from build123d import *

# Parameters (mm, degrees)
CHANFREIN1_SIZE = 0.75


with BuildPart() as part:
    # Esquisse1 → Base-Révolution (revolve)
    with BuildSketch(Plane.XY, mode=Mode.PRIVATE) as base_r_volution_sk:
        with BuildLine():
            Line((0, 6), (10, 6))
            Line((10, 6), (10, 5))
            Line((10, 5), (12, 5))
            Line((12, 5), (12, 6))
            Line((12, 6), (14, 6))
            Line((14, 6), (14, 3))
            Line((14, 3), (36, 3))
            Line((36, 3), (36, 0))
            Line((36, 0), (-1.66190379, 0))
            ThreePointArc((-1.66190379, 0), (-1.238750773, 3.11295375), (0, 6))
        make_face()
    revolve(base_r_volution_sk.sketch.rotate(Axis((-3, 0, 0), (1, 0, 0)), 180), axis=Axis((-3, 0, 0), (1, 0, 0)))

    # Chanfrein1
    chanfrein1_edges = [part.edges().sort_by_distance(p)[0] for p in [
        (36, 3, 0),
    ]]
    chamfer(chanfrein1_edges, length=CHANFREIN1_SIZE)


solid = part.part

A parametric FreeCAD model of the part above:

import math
import FreeCAD as App
import Part
import Sketcher

V = App.Vector


def edges_at(feature, points):
    """Names of the edges that pass closest to the given points."""
    edges = feature.Shape.Edges
    near = lambda p: min(range(len(edges)), key=lambda i: edges[i].distToShape(Part.Vertex(*p))[0])
    return sorted({f"Edge{near(p) + 1}" for p in points})

doc = App.newDocument("Part")
body = doc.addObject("PartDesign::Body", "Body")

# Sketch on XY plane
sketch1 = body.newObject("Sketcher::SketchObject", "Sketch")
sketch1.AttachmentSupport = (doc.getObject("XY_Plane"), [""])
sketch1.MapMode = "FlatFace"
sketch1.addGeometry([
    Part.LineSegment(V(10, 6, 0), V(0, 6, 0)),  # 0
    Part.ArcOfCircle(Part.Circle(V(10, 0, 0), V(0, 0, 1), 11.7), math.radians(149), math.radians(180)),  # 1
    Part.LineSegment(V(-1.7, 0, 0), V(36, 0, 0)),  # 2
    Part.LineSegment(V(36, 0, 0), V(36, 3, 0)),  # 3
    Part.LineSegment(V(36, 3, 0), V(14, 3, 0)),  # 4
    Part.LineSegment(V(14, 3, 0), V(14, 6, 0)),  # 5
    Part.LineSegment(V(14, 6, 0), V(12, 6, 0)),  # 6
    Part.LineSegment(V(12, 6, 0), V(12, 5, 0)),  # 7
    Part.LineSegment(V(12, 5, 0), V(10, 5, 0)),  # 8
    Part.LineSegment(V(10, 5, 0), V(10, 6, 0)),  # 9
], False)
sketch1.addConstraint([
    Sketcher.Constraint("Coincident", 0, 2, 1, 1),
    Sketcher.Constraint("Coincident", 1, 2, 2, 1),
    Sketcher.Constraint("Coincident", 2, 2, 3, 1),
    Sketcher.Constraint("Coincident", 3, 2, 4, 1),
    Sketcher.Constraint("Coincident", 4, 2, 5, 1),
    Sketcher.Constraint("Coincident", 5, 2, 6, 1),
    Sketcher.Constraint("Coincident", 6, 2, 7, 1),
    Sketcher.Constraint("Coincident", 7, 2, 8, 1),
    Sketcher.Constraint("Coincident", 8, 2, 9, 1),
    Sketcher.Constraint("Coincident", 9, 2, 0, 1),
    Sketcher.Constraint("Horizontal", 0),
    Sketcher.Constraint("Horizontal", 2),
    Sketcher.Constraint("Vertical", 3),
    Sketcher.Constraint("Horizontal", 4),
    Sketcher.Constraint("Vertical", 5),
    Sketcher.Constraint("Horizontal", 6),
    Sketcher.Constraint("Vertical", 7),
    Sketcher.Constraint("Horizontal", 8),
    Sketcher.Constraint("Vertical", 9),
    Sketcher.Constraint("PointOnObject", 1, 3, -1),
    Sketcher.Constraint("PointOnObject", 0, 2, -2),
    Sketcher.Constraint("PointOnObject", 1, 2, -1),
    Sketcher.Constraint("Horizontal", 0, 2, 5, 2),
    Sketcher.Constraint("Vertical", 1, 3, 8, 2),
    Sketcher.Constraint("Equal", 6, 8),
    Sketcher.Constraint("Equal", 3, 5),
    Sketcher.Constraint("DistanceX", 0, 2, 0, 1, 10.0),
    Sketcher.Constraint("DistanceX", 4, 2, 4, 1, 22.0),
    Sketcher.Constraint("DistanceX", 6, 2, 6, 1, 2.0),
    Sketcher.Constraint("DistanceY", 3, 1, 3, 2, 3.0),
    Sketcher.Constraint("DistanceY", 7, 2, 7, 1, 1.0),
])
revolution = body.newObject("PartDesign::Revolution", "Revolution")
revolution.Profile = sketch1
revolution.ReferenceAxis = (sketch1, ["H_Axis"])
revolution.Angle = 360
doc.recompute()

chamfer = body.newObject("PartDesign::Chamfer", "Chamfer")
chamfer.Base = (revolution, edges_at(revolution, [(36, 3, 0)]))
chamfer.Size = 0.75

doc.recompute()
